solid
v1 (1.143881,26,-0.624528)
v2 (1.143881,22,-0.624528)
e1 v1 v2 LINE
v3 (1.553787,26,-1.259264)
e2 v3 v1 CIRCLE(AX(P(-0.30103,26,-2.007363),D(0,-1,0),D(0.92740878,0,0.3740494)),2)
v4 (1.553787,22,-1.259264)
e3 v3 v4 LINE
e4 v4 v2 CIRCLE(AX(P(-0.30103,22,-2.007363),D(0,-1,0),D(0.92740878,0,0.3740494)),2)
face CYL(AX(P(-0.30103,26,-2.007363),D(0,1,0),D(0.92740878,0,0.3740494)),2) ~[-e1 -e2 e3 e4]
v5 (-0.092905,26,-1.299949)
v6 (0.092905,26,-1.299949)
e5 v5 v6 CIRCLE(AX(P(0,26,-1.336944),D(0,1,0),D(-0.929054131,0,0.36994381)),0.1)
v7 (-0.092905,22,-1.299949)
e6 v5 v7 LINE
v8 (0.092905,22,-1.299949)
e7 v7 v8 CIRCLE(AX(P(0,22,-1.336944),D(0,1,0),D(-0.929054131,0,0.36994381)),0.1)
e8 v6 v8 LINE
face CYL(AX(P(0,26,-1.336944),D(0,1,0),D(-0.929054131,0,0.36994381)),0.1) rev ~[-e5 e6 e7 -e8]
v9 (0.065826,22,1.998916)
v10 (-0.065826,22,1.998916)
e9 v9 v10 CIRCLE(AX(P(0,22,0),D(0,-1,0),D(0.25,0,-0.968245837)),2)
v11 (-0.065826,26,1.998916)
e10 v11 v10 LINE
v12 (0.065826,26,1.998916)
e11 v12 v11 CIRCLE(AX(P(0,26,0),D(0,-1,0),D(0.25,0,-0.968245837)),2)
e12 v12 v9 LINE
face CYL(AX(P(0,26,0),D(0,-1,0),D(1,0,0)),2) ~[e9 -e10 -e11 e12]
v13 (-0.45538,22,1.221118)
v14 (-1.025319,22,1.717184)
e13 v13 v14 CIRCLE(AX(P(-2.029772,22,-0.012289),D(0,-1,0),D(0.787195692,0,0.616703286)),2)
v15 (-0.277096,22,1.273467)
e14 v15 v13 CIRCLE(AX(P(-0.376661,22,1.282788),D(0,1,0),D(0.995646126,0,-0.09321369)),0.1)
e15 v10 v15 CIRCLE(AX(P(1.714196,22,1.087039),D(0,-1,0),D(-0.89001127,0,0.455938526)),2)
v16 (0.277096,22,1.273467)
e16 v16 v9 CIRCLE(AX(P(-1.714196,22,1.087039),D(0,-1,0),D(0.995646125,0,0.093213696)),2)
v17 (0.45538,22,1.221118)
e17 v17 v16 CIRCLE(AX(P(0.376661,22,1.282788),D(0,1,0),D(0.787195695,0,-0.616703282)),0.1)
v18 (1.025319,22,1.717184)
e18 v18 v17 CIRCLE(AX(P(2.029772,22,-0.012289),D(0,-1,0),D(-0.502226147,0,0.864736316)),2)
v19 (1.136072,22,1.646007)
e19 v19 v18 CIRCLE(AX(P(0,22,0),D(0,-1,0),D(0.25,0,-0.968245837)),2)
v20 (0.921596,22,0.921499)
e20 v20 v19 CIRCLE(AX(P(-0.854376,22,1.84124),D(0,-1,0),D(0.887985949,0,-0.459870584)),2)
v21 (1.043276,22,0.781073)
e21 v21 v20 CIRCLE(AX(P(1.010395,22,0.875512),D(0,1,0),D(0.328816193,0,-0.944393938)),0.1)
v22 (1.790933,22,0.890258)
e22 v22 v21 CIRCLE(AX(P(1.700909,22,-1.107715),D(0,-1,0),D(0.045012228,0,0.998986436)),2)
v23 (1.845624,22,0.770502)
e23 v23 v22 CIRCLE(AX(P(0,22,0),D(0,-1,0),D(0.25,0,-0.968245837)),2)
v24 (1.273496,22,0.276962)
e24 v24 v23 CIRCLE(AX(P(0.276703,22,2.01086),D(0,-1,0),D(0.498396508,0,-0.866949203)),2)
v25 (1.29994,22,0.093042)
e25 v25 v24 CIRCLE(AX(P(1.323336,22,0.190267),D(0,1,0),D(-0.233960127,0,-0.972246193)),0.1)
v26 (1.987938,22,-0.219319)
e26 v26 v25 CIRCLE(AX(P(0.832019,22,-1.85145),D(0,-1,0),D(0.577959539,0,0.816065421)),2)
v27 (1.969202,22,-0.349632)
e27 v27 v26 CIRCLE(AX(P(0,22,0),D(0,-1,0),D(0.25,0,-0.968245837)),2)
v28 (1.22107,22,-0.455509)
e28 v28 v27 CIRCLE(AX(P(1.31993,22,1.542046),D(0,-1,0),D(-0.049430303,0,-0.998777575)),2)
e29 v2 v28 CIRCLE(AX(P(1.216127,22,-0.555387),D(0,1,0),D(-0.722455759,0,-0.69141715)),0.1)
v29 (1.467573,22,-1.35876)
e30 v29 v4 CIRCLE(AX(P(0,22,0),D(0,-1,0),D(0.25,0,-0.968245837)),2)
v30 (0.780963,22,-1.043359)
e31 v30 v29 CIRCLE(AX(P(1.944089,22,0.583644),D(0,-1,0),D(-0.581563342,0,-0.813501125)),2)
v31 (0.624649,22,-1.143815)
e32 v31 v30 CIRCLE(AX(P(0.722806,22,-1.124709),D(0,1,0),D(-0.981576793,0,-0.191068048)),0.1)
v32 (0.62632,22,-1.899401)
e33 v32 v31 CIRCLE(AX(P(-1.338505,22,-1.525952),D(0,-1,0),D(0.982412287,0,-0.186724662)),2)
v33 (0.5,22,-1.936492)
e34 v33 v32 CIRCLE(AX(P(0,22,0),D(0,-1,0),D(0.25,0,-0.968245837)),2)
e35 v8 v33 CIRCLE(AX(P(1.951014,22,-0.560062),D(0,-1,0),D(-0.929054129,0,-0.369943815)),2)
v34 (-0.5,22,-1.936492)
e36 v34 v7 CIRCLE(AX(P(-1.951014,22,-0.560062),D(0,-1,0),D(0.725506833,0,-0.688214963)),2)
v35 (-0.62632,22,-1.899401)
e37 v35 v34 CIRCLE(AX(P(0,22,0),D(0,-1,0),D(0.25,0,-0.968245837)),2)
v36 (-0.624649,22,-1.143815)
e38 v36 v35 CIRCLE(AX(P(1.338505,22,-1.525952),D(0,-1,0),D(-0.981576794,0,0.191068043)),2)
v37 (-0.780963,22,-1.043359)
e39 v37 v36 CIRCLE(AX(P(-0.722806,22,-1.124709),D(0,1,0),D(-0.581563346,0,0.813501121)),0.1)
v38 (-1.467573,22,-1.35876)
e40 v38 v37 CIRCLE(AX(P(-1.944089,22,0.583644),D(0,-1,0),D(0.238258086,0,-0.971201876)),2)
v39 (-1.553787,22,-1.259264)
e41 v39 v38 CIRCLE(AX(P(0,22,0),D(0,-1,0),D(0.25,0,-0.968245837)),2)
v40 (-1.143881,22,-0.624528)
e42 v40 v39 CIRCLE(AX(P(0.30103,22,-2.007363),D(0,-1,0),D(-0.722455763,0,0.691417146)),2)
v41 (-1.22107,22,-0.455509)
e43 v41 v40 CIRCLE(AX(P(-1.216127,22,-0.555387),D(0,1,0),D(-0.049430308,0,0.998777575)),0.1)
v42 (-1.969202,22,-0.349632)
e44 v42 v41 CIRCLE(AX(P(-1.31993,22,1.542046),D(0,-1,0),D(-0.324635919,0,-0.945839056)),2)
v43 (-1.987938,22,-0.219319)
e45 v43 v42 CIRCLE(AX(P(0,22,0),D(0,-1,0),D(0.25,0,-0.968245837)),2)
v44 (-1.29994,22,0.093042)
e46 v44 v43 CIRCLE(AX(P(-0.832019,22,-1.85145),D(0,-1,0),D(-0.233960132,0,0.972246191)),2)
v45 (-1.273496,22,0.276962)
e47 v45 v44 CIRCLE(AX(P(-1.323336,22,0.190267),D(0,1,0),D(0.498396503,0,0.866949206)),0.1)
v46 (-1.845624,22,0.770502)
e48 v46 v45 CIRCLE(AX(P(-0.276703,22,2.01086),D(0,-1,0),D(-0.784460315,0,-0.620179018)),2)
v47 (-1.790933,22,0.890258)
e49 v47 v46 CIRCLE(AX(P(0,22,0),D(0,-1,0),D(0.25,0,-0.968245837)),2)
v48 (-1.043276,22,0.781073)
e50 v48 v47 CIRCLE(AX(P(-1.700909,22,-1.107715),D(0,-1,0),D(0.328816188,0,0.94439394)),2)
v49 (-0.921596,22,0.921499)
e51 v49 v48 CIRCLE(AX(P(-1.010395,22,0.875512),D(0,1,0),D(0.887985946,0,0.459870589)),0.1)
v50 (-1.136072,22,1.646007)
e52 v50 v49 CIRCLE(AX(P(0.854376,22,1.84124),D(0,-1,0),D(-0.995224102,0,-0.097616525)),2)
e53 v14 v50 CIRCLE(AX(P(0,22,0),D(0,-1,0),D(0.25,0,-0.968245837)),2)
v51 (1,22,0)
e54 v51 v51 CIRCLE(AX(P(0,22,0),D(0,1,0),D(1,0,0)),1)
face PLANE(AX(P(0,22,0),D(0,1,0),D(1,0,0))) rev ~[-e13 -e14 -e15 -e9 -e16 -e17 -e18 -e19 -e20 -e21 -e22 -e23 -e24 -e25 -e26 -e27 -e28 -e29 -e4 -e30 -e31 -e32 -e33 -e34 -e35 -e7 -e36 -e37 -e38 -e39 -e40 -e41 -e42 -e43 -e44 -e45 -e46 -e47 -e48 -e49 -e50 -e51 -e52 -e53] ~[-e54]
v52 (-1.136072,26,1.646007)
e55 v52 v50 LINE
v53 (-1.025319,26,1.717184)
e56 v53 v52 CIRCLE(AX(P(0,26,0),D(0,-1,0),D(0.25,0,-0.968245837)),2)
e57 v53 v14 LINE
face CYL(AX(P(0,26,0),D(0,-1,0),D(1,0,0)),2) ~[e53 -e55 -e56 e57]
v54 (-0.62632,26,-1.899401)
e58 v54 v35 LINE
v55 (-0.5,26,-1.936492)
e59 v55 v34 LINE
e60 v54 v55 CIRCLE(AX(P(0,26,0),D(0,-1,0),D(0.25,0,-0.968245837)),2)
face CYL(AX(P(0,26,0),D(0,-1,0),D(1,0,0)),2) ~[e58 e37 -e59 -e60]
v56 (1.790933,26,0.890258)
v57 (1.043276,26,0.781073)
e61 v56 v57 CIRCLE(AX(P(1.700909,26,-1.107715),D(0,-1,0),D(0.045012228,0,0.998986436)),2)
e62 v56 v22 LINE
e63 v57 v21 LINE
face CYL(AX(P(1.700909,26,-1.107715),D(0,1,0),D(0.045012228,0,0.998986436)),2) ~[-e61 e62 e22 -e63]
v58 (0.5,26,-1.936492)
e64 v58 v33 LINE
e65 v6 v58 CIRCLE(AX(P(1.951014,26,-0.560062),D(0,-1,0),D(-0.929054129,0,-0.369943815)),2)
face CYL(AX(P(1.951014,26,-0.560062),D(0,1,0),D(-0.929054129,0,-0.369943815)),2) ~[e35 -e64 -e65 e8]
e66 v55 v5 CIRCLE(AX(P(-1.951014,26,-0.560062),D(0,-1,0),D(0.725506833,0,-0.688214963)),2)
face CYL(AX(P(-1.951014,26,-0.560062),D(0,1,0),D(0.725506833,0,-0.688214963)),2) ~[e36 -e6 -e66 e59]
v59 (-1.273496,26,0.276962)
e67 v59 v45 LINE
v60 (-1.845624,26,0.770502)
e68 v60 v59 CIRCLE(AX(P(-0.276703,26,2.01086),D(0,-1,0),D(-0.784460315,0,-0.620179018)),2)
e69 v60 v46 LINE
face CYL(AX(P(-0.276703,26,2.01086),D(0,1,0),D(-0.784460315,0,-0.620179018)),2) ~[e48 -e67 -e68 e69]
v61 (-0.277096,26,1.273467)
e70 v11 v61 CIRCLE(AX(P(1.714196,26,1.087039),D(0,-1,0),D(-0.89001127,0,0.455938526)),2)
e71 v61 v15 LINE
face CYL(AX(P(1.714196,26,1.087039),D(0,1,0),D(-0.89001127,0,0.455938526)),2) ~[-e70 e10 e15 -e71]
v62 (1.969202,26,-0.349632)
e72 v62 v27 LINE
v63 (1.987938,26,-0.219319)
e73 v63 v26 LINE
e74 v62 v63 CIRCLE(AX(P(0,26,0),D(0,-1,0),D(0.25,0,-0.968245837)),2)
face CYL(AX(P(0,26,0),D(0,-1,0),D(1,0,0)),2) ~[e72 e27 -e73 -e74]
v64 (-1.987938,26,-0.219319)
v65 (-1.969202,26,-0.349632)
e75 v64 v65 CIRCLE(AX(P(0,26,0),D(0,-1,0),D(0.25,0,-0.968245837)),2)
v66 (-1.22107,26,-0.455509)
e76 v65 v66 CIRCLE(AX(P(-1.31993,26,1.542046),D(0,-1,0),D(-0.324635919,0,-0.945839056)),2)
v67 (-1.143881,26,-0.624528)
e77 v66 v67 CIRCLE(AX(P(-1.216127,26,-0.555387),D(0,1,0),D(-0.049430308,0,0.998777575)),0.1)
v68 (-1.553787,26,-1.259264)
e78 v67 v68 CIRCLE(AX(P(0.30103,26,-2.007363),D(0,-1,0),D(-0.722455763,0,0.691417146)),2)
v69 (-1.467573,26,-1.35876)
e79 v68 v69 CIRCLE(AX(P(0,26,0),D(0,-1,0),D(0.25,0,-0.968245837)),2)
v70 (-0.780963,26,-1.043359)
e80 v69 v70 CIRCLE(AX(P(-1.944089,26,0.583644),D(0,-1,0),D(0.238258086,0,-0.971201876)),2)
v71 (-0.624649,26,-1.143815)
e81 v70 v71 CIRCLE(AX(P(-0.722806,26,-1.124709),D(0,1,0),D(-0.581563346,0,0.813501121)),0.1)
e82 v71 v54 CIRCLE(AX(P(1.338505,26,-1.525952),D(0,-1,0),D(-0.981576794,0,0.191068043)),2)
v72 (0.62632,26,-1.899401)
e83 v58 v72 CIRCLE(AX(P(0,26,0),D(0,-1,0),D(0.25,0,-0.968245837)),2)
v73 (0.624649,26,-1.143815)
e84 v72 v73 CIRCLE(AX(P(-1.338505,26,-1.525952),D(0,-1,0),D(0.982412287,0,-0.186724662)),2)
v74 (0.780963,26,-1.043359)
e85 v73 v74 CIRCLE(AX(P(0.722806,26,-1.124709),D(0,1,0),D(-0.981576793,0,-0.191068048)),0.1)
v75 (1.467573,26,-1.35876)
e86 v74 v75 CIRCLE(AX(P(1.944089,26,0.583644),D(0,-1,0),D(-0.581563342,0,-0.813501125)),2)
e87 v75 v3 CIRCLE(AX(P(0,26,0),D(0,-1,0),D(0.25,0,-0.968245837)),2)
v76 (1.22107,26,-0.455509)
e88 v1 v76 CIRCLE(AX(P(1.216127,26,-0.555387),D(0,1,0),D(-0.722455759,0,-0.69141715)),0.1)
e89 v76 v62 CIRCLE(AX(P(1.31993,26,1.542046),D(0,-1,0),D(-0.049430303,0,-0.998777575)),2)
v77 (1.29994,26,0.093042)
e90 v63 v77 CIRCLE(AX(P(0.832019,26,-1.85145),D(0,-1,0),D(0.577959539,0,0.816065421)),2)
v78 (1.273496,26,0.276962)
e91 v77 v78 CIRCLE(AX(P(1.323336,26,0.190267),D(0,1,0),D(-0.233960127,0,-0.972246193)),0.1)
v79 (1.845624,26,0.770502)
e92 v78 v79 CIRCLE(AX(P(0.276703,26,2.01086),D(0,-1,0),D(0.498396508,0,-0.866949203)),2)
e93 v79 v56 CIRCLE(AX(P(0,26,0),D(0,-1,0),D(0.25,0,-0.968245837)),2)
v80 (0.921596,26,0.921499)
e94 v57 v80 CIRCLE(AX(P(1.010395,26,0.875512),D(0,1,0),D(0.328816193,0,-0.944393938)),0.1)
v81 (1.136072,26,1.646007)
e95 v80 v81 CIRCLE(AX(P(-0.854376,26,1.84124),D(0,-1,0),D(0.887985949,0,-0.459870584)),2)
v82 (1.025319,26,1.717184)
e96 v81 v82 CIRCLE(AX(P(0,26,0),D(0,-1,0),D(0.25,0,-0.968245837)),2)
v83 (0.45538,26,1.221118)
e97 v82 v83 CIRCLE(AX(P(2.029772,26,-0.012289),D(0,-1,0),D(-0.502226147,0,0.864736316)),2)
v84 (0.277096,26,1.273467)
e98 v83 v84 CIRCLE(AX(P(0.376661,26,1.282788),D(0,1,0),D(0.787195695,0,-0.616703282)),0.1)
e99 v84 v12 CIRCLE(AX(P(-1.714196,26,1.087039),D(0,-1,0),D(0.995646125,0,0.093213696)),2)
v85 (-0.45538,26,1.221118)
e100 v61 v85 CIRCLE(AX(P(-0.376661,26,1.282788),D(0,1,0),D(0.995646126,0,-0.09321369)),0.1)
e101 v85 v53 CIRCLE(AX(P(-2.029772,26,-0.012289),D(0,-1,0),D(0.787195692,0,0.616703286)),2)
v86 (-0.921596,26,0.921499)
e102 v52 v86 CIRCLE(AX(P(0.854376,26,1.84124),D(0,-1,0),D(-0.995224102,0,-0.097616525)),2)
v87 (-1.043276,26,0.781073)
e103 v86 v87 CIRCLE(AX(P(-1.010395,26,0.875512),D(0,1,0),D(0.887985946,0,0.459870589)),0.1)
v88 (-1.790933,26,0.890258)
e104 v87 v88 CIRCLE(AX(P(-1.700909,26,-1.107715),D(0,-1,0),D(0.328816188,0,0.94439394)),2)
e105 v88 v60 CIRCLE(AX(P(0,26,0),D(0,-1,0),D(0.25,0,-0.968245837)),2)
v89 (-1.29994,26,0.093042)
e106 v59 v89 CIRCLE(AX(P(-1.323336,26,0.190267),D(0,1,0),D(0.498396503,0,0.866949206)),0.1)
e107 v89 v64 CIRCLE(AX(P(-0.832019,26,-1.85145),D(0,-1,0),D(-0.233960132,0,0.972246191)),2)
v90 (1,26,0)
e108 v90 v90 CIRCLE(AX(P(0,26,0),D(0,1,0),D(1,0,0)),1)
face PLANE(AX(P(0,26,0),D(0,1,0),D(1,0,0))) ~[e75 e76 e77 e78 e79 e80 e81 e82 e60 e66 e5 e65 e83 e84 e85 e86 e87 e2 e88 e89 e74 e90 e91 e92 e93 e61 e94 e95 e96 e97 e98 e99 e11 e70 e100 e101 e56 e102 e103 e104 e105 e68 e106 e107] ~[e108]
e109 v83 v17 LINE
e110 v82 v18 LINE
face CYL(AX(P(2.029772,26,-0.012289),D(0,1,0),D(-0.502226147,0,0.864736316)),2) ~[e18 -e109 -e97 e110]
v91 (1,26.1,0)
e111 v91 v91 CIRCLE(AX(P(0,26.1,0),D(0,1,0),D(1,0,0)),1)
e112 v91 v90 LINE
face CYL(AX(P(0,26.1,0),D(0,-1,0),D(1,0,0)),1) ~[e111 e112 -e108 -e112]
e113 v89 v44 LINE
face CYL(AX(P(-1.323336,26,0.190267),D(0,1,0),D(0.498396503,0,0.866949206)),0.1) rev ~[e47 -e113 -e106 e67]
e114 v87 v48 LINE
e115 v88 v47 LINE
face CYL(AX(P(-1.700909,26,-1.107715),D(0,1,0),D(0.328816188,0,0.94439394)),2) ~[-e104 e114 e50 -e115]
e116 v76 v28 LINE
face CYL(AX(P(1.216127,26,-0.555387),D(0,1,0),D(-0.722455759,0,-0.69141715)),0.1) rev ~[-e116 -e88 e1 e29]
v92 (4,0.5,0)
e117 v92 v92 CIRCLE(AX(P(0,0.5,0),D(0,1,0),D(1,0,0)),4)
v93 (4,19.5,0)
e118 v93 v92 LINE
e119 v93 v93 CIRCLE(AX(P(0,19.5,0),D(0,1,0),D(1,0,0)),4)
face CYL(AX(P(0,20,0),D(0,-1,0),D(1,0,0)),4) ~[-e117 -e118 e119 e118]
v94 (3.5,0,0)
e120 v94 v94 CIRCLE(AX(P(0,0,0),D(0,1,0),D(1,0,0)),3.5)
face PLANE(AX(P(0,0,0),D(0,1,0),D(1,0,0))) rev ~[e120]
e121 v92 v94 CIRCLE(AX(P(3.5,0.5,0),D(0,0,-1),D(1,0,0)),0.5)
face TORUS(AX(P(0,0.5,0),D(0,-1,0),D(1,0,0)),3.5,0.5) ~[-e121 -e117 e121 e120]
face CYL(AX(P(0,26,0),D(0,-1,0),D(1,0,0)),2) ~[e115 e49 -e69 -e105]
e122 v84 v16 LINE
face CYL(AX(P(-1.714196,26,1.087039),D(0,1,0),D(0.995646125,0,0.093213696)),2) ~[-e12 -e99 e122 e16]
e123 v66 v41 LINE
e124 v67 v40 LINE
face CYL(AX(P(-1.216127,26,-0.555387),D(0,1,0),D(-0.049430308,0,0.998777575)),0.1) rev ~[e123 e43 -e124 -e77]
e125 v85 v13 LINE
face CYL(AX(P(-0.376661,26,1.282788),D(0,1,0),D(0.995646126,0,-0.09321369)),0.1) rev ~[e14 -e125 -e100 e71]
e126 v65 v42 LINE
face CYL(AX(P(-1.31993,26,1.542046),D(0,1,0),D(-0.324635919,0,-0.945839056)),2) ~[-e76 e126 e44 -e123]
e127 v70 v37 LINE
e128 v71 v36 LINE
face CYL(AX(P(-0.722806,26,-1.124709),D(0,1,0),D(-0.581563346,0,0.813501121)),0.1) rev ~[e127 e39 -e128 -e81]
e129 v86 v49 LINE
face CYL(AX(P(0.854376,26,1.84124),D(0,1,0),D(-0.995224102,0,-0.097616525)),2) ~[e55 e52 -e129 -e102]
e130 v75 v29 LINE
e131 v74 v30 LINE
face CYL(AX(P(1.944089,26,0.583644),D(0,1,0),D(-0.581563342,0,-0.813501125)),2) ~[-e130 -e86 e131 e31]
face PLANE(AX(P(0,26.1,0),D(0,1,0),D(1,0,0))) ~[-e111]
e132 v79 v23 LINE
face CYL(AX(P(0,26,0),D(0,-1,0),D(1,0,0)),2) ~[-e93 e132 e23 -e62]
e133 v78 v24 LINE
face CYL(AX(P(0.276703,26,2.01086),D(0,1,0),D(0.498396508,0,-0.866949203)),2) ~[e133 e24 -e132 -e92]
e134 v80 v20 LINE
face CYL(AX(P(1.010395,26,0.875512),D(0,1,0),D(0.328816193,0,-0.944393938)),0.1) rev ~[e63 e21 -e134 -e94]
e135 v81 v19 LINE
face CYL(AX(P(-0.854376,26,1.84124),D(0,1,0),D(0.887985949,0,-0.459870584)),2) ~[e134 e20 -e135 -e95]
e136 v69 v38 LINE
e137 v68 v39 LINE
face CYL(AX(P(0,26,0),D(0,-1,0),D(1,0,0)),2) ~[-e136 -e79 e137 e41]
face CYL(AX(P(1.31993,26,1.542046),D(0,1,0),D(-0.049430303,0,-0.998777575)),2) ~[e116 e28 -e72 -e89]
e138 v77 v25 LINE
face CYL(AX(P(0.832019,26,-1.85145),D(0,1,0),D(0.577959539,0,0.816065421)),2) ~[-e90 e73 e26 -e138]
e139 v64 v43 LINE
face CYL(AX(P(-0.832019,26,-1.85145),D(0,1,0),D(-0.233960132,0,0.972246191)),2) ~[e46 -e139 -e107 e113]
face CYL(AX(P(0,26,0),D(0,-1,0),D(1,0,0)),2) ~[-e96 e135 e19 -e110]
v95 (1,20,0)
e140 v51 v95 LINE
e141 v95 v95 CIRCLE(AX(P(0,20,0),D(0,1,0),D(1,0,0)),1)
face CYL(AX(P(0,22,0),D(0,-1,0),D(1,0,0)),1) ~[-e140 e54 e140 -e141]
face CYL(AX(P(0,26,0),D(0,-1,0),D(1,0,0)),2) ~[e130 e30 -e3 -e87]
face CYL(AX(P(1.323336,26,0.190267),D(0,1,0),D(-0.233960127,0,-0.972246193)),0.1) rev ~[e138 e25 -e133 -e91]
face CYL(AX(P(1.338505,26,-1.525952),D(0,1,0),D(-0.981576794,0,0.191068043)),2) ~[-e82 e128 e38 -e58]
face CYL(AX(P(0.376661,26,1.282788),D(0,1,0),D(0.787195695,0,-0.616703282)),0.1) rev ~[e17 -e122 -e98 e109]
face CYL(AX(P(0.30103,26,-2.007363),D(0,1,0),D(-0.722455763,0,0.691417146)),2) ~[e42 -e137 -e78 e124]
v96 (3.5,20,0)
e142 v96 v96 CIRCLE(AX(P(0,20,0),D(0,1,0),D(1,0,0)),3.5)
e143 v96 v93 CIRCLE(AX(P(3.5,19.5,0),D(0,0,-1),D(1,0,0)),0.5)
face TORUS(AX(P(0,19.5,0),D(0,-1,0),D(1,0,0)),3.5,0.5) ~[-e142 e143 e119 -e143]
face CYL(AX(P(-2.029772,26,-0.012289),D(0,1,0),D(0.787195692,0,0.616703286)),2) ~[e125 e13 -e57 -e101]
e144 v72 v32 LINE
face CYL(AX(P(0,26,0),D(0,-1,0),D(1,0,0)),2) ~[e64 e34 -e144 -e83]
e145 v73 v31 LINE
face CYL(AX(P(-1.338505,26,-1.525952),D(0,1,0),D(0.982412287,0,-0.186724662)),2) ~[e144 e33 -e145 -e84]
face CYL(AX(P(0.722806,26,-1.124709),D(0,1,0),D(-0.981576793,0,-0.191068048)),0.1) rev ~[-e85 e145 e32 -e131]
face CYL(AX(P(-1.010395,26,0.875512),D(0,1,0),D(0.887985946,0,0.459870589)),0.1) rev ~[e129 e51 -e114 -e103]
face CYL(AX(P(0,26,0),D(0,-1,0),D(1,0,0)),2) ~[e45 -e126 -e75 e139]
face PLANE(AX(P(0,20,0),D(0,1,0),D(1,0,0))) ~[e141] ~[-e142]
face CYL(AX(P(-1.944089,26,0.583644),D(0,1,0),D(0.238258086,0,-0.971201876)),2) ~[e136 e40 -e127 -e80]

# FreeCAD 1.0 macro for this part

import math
import FreeCAD as App
import Part
import Sketcher
Q = App.Units.Quantity


def edges_at(feature, points):
    """Names of the edges that pass closest to the given points."""
    edges = feature.Shape.Edges
    near = lambda p: min(range(len(edges)), key=lambda i: edges[i].distToShape(Part.Vertex(*p))[0])
    return sorted({f"Edge{near(p) + 1}" for p in points})

doc = App.newDocument("Part")
body = doc.addObject("PartDesign::Body", "Body")

sketch1 = body.newObject("Sketcher::SketchObject", "Sketch")
sketch1.AttachmentSupport = (doc.getObject("XY_Plane"), [""])
sketch1.MapMode = "FlatFace"
sketch1.addGeometry([
    Part.LineSegment(App.Vector(0, 26.1, 0), App.Vector(0, 0, 0)),
    Part.LineSegment(App.Vector(0, 0, 0), App.Vector(4, 0, 0)),
    Part.LineSegment(App.Vector(4, 0, 0), App.Vector(4, 20, 0)),
    Part.LineSegment(App.Vector(4, 20, 0), App.Vector(1, 20, 0)),
    Part.LineSegment(App.Vector(1, 20, 0), App.Vector(1, 22, 0)),
    Part.LineSegment(App.Vector(1, 22, 0), App.Vector(2, 22, 0)),
    Part.LineSegment(App.Vector(2, 22, 0), App.Vector(2, 26, 0)),
    Part.LineSegment(App.Vector(2, 26, 0), App.Vector(1, 26, 0)),
    Part.LineSegment(App.Vector(1, 26, 0), App.Vector(1, 26.1, 0)),
    Part.LineSegment(App.Vector(1, 26.1, 0), App.Vector(0, 26.1, 0)),
], False)
sketch1.addConstraint([
    Sketcher.Constraint("Coincident", 0, 2, 1, 1),
    Sketcher.Constraint("Coincident", 1, 2, 2, 1),
    Sketcher.Constraint("Coincident", 2, 2, 3, 1),
    Sketcher.Constraint("Coincident", 3, 2, 4, 1),
    Sketcher.Constraint("Coincident", 4, 2, 5, 1),
    Sketcher.Constraint("Coincident", 5, 2, 6, 1),
    Sketcher.Constraint("Coincident", 6, 2, 7, 1),
    Sketcher.Constraint("Coincident", 7, 2, 8, 1),
    Sketcher.Constraint("Coincident", 8, 2, 9, 1),
    Sketcher.Constraint("Coincident", 9, 2, 0, 1),
    Sketcher.Constraint("Vertical", 0),
    Sketcher.Constraint("Horizontal", 1),
    Sketcher.Constraint("Vertical", 2),
    Sketcher.Constraint("Horizontal", 3),
    Sketcher.Constraint("Vertical", 4),
    Sketcher.Constraint("Horizontal", 5),
    Sketcher.Constraint("Vertical", 6),
    Sketcher.Constraint("Horizontal", 7),
    Sketcher.Constraint("Vertical", 8),
    Sketcher.Constraint("Horizontal", 9),
    Sketcher.Constraint("Coincident", 0, 2, -1, 1),
    Sketcher.Constraint("Vertical", 4, 2, 7, 2),
    Sketcher.Constraint("Equal", 7, 9),
    Sketcher.Constraint("Equal", 1, 6),
    Sketcher.Constraint("DistanceX", 1, 1, 1, 2, Q("4 mm")),
    Sketcher.Constraint("DistanceX", 3, 2, 3, 1, Q("3 mm")),
    Sketcher.Constraint("DistanceY", 2, 1, 2, 2, Q("20 mm")),
    Sketcher.Constraint("DistanceY", 4, 1, 4, 2, Q("2 mm")),
    Sketcher.Constraint("DistanceY", 0, 2, 0, 1, Q("26.1 mm")),
])
revolution = body.newObject("PartDesign::Revolution", "Revolution")
revolution.Profile = sketch1
revolution.ReferenceAxis = (sketch1, ["V_Axis"])
revolution.Angle = 360
doc.recompute()

fillet = body.newObject("PartDesign::Fillet", "Fillet")
fillet.Base = (revolution, edges_at(revolution, [(-4, 20, 0), (-4, 0, 0)]))
fillet.Radius = 0.5

sketch2 = body.newObject("Sketcher::SketchObject", "Sketch001")
sketch2.AttachmentSupport = (doc.getObject("XZ_Plane"), [""])
sketch2.MapMode = "FlatFace"
sketch2.AttachmentOffset = App.Placement(App.Vector(0, 0, -26), App.Rotation())
sketch2.addGeometry([
    Part.ArcOfCircle(Part.Circle(App.Vector(-1.951014, -0.560062, 0), App.Vector(0, 0, 1), 2), math.radians(-43.488973), math.radians(-21.712152)),
    Part.ArcOfCircle(Part.Circle(App.Vector(0, -1.336944, 0), App.Vector(0, 0, 1), 0.1), math.radians(21.712152), math.radians(158.287848)),
    Part.ArcOfCircle(Part.Circle(App.Vector(1.951014, -0.560062, 0), App.Vector(0, 0, 1), 2), math.radians(-158.287848), math.radians(-136.511027)),
    Part.ArcOfCircle(Part.Circle(App.Vector(0, 0, 0), App.Vector(0, 0, 1), 2), math.radians(-104.477512), math.radians(-75.522488)),
], False)
sketch2.addConstraint([
    Sketcher.Constraint("Tangent", 0, 2, 1, 2),
    Sketcher.Constraint("Tangent", 1, 1, 2, 1),
    Sketcher.Constraint("Coincident", 2, 2, 3, 2),
    Sketcher.Constraint("Coincident", 3, 1, 0, 1),
    Sketcher.Constraint("Coincident", 3, 3, -1, 1),
    Sketcher.Constraint("Equal", 0, 2),
    Sketcher.Constraint("Equal", 2, 3),
    Sketcher.Constraint("Symmetric", 0, 3, 2, 3, -2),
    Sketcher.Constraint("Radius", 0, Q("2 mm")),
    Sketcher.Constraint("Radius", 1, Q("0.1 mm")),
    Sketcher.Constraint("DistanceX", 3, 1, 2, 2, Q("1 mm")),
    Sketcher.Constraint("DistanceY", 0, 3, -1, 1, Q("0.560062 mm")),
])
pocket1 = body.newObject("PartDesign::Pocket", "Pocket")
pocket1.Profile = sketch2
pocket1.Length = 4
pocket1.Reversed = True
doc.recompute()

polarpattern = body.newObject("PartDesign::PolarPattern", "PolarPattern")
polarpattern.Originals = [pocket1]
polarpattern.Axis = (doc.getObject("Y_Axis"), [""])
polarpattern.Angle = 360
polarpattern.Occurrences = 11
body.Tip = polarpattern

doc.recompute()
